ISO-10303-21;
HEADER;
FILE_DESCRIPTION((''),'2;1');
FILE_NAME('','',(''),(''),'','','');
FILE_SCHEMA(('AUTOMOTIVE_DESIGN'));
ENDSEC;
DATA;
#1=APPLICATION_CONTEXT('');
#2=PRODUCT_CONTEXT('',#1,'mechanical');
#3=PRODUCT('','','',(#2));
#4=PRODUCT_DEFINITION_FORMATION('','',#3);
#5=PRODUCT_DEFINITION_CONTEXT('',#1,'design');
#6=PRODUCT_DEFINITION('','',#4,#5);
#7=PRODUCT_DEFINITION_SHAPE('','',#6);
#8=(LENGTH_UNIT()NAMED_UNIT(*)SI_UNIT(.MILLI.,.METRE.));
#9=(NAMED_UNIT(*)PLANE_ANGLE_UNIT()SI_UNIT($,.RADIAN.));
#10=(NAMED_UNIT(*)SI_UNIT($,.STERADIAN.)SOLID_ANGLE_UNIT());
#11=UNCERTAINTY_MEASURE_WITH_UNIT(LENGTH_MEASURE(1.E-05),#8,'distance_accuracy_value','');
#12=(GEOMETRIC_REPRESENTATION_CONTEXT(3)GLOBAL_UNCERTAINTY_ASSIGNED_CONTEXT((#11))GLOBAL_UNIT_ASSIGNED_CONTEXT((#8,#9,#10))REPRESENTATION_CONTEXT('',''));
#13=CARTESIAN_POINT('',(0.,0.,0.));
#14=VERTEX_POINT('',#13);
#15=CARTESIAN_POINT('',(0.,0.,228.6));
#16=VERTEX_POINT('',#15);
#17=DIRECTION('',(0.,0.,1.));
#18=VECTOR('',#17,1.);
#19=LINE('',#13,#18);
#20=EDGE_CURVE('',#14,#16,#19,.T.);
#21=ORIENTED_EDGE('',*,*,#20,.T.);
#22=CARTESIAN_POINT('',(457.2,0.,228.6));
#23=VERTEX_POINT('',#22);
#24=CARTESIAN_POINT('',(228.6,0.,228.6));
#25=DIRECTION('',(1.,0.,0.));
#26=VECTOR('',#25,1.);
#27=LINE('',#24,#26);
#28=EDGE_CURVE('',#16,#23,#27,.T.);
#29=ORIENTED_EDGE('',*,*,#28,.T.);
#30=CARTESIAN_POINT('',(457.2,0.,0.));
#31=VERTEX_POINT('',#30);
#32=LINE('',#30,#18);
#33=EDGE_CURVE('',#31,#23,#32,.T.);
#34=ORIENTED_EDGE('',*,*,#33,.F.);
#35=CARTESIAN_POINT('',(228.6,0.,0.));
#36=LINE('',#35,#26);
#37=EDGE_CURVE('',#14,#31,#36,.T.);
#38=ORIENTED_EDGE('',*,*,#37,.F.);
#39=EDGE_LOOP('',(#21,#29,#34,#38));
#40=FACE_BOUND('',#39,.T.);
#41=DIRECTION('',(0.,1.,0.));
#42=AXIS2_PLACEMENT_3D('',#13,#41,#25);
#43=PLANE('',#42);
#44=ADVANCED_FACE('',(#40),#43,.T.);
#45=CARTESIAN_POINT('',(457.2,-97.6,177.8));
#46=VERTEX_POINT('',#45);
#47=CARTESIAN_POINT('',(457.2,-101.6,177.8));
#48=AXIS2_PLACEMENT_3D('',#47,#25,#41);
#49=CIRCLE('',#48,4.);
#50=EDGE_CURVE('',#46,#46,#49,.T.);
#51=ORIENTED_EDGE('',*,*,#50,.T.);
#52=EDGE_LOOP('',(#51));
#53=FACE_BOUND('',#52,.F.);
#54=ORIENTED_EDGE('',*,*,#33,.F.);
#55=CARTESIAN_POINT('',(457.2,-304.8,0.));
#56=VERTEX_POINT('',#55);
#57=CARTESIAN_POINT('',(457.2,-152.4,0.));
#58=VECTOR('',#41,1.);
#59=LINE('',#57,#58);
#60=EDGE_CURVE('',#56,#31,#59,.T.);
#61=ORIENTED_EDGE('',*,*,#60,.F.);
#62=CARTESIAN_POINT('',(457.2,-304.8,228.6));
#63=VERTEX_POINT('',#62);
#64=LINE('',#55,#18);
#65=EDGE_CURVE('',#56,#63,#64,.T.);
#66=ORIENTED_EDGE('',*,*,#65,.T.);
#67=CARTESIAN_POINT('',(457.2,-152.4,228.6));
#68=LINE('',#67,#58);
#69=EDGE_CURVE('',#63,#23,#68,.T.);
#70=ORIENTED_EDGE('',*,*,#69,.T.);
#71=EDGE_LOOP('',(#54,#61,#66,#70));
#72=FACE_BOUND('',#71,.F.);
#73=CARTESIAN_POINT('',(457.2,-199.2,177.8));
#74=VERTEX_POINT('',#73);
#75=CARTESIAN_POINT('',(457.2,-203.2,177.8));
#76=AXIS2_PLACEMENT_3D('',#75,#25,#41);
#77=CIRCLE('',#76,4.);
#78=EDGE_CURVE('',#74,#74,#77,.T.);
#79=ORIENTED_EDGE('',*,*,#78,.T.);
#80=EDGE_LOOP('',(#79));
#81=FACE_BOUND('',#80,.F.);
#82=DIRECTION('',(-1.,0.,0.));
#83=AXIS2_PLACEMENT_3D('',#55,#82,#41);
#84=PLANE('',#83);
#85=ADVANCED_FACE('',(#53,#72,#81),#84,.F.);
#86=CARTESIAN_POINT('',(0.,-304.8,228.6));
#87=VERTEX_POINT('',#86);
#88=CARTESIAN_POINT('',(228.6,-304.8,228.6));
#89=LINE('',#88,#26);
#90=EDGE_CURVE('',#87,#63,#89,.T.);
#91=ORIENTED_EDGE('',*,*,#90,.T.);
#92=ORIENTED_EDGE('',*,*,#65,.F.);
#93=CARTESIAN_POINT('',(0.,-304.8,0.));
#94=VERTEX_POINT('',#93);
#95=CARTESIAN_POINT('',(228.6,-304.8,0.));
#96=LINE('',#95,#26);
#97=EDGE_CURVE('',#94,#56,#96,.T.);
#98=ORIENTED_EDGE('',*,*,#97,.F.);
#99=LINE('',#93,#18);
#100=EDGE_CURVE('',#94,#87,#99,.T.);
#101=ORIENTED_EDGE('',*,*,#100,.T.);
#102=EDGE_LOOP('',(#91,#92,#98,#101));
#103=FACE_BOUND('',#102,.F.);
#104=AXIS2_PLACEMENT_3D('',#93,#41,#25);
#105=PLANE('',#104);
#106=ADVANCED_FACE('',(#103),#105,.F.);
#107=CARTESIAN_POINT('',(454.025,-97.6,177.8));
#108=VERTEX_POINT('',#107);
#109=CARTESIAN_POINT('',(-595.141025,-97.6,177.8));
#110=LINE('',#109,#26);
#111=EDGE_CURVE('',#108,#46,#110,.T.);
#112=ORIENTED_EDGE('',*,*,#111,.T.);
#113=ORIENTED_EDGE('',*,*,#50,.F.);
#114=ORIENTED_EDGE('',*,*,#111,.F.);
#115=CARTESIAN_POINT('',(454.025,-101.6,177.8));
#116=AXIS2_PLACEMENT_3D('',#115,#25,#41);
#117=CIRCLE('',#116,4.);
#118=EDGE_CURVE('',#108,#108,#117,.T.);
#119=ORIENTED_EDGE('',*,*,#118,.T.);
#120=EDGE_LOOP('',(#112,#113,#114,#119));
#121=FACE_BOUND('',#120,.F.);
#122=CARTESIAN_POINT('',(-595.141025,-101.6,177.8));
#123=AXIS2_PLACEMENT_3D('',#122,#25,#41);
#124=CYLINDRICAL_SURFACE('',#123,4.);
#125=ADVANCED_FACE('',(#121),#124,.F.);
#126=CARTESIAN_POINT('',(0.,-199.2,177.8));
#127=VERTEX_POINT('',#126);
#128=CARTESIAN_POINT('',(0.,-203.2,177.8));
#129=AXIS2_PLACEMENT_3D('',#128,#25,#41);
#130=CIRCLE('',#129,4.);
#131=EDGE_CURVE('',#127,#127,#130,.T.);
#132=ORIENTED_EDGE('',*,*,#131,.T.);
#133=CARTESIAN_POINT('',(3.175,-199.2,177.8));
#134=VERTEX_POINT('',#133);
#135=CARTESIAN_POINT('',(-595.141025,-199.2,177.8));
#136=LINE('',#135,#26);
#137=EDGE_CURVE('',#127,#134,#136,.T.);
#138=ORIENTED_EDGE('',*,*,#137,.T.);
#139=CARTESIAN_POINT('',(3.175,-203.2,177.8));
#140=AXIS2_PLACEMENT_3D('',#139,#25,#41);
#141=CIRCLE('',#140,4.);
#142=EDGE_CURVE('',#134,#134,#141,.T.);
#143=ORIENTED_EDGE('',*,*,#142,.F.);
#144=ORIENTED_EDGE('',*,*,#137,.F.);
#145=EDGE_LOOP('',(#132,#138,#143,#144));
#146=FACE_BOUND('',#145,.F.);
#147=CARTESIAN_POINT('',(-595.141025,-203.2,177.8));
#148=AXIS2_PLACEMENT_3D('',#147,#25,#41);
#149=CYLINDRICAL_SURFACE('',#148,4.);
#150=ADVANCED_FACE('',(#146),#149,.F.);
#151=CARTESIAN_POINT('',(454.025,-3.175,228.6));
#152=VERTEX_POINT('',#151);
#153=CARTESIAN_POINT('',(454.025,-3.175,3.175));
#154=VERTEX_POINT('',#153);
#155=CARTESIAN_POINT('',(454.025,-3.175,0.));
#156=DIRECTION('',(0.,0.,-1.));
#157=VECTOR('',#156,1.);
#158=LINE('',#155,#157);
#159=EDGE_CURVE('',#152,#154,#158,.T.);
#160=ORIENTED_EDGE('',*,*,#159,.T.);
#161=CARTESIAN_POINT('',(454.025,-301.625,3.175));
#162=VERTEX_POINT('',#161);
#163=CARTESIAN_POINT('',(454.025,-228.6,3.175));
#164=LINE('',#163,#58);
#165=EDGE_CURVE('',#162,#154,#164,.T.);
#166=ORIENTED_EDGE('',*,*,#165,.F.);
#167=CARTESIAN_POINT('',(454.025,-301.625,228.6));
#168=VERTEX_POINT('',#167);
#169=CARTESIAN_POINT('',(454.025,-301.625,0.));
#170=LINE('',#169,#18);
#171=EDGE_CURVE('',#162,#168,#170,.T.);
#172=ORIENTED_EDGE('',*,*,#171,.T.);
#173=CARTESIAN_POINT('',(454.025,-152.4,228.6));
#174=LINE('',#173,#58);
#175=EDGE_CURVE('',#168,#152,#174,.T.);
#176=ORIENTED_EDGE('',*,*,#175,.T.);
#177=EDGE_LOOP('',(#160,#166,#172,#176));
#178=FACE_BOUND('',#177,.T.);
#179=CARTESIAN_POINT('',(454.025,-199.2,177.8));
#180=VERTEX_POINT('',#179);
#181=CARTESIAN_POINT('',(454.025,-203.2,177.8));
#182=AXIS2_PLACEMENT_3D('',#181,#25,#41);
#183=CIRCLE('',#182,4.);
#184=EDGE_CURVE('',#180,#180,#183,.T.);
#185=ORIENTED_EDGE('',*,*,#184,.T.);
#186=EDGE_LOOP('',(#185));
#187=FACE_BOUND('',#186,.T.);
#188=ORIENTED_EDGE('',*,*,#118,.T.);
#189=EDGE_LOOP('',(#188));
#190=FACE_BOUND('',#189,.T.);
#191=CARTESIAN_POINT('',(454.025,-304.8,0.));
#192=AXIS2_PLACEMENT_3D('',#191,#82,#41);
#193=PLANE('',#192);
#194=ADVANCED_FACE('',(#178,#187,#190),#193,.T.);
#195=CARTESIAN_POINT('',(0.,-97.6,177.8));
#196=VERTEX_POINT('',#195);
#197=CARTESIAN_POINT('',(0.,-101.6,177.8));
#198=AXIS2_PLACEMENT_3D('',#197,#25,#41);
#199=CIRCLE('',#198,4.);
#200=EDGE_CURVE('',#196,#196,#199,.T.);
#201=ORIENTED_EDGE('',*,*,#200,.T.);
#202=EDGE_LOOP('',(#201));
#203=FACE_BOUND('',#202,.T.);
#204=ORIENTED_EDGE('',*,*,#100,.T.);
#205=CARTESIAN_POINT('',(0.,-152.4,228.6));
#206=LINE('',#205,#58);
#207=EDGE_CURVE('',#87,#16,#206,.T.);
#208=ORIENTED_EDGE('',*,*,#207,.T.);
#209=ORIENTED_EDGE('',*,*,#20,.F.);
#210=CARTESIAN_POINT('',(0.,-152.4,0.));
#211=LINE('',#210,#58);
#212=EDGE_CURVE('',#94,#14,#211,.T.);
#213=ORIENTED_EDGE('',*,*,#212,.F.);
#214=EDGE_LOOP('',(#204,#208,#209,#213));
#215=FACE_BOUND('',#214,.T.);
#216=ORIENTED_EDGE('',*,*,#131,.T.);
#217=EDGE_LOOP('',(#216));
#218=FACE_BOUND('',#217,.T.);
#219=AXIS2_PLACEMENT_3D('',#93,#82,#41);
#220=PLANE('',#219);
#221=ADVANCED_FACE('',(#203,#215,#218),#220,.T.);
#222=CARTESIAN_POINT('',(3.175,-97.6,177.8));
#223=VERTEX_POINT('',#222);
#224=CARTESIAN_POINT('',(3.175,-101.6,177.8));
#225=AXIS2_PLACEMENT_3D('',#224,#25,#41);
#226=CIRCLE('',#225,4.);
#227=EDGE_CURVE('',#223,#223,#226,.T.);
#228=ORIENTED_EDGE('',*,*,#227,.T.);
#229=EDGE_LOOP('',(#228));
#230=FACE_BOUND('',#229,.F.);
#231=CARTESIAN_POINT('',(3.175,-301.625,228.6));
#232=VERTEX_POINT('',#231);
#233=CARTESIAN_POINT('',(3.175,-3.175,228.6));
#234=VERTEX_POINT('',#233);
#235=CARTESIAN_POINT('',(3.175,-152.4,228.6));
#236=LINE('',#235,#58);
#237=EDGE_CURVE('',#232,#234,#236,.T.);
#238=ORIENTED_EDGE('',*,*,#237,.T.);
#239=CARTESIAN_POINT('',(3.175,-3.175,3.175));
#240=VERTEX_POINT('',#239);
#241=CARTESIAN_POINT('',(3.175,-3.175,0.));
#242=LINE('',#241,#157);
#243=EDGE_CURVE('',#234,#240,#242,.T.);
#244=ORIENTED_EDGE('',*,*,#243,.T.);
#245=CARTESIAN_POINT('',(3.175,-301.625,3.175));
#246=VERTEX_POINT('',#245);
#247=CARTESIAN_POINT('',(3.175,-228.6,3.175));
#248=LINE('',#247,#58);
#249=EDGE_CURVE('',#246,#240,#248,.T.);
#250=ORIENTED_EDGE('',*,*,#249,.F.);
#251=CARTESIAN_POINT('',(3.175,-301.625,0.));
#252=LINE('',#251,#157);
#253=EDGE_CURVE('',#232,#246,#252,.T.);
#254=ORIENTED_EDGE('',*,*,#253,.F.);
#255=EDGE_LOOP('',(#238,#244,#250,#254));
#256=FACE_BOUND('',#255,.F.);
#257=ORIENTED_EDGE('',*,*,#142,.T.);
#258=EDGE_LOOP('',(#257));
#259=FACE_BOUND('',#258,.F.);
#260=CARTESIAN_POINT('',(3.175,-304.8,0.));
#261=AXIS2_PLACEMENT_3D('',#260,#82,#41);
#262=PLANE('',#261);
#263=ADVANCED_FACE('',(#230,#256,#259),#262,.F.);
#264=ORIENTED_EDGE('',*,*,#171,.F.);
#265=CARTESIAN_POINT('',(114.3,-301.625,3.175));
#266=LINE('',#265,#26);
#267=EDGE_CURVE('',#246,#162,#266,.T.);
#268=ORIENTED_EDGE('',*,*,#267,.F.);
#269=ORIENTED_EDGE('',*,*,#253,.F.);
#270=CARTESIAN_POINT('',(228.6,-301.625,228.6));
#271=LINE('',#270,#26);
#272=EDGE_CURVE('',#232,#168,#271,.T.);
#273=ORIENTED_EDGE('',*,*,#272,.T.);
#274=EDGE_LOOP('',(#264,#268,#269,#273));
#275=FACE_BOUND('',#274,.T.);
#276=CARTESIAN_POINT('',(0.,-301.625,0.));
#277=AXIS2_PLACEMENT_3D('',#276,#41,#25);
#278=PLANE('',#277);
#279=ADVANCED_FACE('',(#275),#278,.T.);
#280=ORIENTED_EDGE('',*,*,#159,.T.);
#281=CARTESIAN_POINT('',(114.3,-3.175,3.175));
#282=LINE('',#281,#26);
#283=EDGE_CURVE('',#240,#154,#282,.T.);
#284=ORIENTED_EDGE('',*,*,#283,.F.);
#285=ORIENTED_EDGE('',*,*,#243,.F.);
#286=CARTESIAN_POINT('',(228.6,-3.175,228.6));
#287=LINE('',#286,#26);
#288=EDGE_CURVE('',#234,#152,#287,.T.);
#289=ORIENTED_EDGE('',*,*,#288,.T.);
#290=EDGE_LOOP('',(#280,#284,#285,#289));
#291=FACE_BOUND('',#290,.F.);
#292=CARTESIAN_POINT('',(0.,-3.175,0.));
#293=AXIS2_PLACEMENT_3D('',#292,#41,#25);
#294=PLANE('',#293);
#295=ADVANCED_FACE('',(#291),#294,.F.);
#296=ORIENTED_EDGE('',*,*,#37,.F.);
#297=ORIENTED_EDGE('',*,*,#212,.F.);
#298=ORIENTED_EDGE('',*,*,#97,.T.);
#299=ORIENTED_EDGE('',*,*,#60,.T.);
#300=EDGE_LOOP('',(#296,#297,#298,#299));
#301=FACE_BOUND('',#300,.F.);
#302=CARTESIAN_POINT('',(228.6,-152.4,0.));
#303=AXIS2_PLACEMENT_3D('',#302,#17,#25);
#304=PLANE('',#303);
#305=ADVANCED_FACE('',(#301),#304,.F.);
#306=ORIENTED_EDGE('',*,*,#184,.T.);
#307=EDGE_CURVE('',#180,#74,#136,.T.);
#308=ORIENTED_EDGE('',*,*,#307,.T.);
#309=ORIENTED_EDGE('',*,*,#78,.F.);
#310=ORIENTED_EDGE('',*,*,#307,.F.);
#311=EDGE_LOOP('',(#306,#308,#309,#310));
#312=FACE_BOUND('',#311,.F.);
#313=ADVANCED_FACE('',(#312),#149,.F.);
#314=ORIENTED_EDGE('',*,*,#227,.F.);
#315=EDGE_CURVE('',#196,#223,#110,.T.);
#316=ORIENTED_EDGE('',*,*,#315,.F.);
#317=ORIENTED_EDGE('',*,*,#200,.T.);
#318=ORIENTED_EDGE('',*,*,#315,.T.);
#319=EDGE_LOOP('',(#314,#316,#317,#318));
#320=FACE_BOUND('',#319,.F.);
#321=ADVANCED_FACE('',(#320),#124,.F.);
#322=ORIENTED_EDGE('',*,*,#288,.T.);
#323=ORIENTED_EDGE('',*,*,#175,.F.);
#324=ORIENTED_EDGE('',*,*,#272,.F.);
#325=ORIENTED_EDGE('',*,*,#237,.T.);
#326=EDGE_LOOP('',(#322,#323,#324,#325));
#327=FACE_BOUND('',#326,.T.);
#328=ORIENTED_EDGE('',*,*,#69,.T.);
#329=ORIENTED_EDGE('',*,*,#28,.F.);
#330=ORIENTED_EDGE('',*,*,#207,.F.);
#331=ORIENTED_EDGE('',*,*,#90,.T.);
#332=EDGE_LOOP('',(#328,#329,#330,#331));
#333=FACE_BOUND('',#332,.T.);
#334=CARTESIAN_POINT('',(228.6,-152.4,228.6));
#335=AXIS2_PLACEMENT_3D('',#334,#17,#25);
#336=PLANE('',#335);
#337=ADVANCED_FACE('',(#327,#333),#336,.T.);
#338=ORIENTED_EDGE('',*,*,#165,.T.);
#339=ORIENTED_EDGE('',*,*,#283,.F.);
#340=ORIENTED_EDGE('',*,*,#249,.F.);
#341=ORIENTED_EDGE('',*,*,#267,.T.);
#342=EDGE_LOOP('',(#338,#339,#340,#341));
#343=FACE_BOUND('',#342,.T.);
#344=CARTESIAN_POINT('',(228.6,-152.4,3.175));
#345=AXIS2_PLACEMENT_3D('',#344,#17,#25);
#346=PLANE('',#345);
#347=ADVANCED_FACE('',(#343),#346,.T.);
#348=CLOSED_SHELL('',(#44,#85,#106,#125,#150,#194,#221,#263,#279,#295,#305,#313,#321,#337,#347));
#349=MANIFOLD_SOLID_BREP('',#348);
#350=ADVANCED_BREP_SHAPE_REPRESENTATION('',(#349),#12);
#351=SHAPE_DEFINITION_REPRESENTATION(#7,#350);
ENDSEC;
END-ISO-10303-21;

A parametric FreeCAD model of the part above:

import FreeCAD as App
import Part
import Sketcher

V = App.Vector
Q = App.Units.Quantity


def faces_at(feature, points):
    """Names of the faces that lie closest to the given points."""
    faces = feature.Shape.Faces
    near = lambda p: min(range(len(faces)), key=lambda i: faces[i].distToShape(Part.Vertex(*p))[0])
    return sorted({f"Face{near(p) + 1}" for p in points})

doc = App.newDocument("Part")
body = doc.addObject("PartDesign::Body", "Body")

sketch1 = body.newObject("Sketcher::SketchObject", "Sketch")
sketch1.AttachmentSupport = (doc.getObject("XY_Plane"), [""])
sketch1.MapMode = "FlatFace"
sketch1.addGeometry(Part.LineSegment(V(0, 0, 0), V(0, -305, 0)), False)
sketch1.addGeometry(Part.LineSegment(V(0, -305, 0), V(457, -305, 0)), False)
sketch1.addGeometry(Part.LineSegment(V(457, -305, 0), V(457, 0, 0)), False)
sketch1.addGeometry(Part.LineSegment(V(457, 0, 0), V(0, 0, 0)), False)
sketch1.addConstraint(Sketcher.Constraint("Coincident", 0, 2, 1, 1))
sketch1.addConstraint(Sketcher.Constraint("Coincident", 1, 2, 2, 1))
sketch1.addConstraint(Sketcher.Constraint("Coincident", 2, 2, 3, 1))
sketch1.addConstraint(Sketcher.Constraint("Coincident", 3, 2, 0, 1))
sketch1.addConstraint(Sketcher.Constraint("Vertical", 0))
sketch1.addConstraint(Sketcher.Constraint("Horizontal", 1))
sketch1.addConstraint(Sketcher.Constraint("Vertical", 2))
sketch1.addConstraint(Sketcher.Constraint("Horizontal", 3))
sketch1.addConstraint(Sketcher.Constraint("Coincident", 3, 2, -1, 1))
sketch1.addConstraint(Sketcher.Constraint("DistanceX", 1, 1, 1, 2, Q("18 in")))
sketch1.addConstraint(Sketcher.Constraint("DistanceY", 0, 2, 0, 1, Q("12 in")))
pad1 = body.newObject("PartDesign::Pad", "Pad")
pad1.Profile = sketch1
pad1.Length = Q("9 in")
doc.recompute()

thickness = body.newObject("PartDesign::Thickness", "Thickness")
thickness.Base = (pad1, faces_at(pad1, [(228.6, -152.4, 228.6)]))
thickness.Value = Q("0.125 in")
thickness.Reversed = True
thickness.Join = "Arc"

sketch2 = body.newObject("Sketcher::SketchObject", "Sketch001")
sketch2.AttachmentSupport = (doc.getObject("YZ_Plane"), [""])
sketch2.MapMode = "FlatFace"
sketch2.addGeometry(Part.Circle(V(-203.2, 177.8, 0), V(0, 0, 1), 4), False)
sketch2.addGeometry(Part.Circle(V(-101.6, 177.8, 0), V(0, 0, 1), 4), False)
sketch2.addConstraint(Sketcher.Constraint("Equal", 0, 1))
sketch2.addConstraint(Sketcher.Constraint("Horizontal", 0, 3, 1, 3))
sketch2.addConstraint(Sketcher.Constraint("DistanceX", 0, 3, -1, 1, Q("8 in")))
sketch2.addConstraint(Sketcher.Constraint("DistanceY", -1, 1, 0, 3, Q("7 in")))
sketch2.addConstraint(Sketcher.Constraint("DistanceX", 1, 3, -1, 1, Q("4 in")))
sketch2.addConstraint(Sketcher.Constraint("Diameter", 0, 8.0))
doc.recompute()
hole = body.newObject("PartDesign::Hole", "Hole")
hole.Profile = sketch2
hole.ThreadType = "None"
hole.Diameter = 8
hole.DepthType = "ThroughAll"
hole.Reversed = True

doc.recompute()
